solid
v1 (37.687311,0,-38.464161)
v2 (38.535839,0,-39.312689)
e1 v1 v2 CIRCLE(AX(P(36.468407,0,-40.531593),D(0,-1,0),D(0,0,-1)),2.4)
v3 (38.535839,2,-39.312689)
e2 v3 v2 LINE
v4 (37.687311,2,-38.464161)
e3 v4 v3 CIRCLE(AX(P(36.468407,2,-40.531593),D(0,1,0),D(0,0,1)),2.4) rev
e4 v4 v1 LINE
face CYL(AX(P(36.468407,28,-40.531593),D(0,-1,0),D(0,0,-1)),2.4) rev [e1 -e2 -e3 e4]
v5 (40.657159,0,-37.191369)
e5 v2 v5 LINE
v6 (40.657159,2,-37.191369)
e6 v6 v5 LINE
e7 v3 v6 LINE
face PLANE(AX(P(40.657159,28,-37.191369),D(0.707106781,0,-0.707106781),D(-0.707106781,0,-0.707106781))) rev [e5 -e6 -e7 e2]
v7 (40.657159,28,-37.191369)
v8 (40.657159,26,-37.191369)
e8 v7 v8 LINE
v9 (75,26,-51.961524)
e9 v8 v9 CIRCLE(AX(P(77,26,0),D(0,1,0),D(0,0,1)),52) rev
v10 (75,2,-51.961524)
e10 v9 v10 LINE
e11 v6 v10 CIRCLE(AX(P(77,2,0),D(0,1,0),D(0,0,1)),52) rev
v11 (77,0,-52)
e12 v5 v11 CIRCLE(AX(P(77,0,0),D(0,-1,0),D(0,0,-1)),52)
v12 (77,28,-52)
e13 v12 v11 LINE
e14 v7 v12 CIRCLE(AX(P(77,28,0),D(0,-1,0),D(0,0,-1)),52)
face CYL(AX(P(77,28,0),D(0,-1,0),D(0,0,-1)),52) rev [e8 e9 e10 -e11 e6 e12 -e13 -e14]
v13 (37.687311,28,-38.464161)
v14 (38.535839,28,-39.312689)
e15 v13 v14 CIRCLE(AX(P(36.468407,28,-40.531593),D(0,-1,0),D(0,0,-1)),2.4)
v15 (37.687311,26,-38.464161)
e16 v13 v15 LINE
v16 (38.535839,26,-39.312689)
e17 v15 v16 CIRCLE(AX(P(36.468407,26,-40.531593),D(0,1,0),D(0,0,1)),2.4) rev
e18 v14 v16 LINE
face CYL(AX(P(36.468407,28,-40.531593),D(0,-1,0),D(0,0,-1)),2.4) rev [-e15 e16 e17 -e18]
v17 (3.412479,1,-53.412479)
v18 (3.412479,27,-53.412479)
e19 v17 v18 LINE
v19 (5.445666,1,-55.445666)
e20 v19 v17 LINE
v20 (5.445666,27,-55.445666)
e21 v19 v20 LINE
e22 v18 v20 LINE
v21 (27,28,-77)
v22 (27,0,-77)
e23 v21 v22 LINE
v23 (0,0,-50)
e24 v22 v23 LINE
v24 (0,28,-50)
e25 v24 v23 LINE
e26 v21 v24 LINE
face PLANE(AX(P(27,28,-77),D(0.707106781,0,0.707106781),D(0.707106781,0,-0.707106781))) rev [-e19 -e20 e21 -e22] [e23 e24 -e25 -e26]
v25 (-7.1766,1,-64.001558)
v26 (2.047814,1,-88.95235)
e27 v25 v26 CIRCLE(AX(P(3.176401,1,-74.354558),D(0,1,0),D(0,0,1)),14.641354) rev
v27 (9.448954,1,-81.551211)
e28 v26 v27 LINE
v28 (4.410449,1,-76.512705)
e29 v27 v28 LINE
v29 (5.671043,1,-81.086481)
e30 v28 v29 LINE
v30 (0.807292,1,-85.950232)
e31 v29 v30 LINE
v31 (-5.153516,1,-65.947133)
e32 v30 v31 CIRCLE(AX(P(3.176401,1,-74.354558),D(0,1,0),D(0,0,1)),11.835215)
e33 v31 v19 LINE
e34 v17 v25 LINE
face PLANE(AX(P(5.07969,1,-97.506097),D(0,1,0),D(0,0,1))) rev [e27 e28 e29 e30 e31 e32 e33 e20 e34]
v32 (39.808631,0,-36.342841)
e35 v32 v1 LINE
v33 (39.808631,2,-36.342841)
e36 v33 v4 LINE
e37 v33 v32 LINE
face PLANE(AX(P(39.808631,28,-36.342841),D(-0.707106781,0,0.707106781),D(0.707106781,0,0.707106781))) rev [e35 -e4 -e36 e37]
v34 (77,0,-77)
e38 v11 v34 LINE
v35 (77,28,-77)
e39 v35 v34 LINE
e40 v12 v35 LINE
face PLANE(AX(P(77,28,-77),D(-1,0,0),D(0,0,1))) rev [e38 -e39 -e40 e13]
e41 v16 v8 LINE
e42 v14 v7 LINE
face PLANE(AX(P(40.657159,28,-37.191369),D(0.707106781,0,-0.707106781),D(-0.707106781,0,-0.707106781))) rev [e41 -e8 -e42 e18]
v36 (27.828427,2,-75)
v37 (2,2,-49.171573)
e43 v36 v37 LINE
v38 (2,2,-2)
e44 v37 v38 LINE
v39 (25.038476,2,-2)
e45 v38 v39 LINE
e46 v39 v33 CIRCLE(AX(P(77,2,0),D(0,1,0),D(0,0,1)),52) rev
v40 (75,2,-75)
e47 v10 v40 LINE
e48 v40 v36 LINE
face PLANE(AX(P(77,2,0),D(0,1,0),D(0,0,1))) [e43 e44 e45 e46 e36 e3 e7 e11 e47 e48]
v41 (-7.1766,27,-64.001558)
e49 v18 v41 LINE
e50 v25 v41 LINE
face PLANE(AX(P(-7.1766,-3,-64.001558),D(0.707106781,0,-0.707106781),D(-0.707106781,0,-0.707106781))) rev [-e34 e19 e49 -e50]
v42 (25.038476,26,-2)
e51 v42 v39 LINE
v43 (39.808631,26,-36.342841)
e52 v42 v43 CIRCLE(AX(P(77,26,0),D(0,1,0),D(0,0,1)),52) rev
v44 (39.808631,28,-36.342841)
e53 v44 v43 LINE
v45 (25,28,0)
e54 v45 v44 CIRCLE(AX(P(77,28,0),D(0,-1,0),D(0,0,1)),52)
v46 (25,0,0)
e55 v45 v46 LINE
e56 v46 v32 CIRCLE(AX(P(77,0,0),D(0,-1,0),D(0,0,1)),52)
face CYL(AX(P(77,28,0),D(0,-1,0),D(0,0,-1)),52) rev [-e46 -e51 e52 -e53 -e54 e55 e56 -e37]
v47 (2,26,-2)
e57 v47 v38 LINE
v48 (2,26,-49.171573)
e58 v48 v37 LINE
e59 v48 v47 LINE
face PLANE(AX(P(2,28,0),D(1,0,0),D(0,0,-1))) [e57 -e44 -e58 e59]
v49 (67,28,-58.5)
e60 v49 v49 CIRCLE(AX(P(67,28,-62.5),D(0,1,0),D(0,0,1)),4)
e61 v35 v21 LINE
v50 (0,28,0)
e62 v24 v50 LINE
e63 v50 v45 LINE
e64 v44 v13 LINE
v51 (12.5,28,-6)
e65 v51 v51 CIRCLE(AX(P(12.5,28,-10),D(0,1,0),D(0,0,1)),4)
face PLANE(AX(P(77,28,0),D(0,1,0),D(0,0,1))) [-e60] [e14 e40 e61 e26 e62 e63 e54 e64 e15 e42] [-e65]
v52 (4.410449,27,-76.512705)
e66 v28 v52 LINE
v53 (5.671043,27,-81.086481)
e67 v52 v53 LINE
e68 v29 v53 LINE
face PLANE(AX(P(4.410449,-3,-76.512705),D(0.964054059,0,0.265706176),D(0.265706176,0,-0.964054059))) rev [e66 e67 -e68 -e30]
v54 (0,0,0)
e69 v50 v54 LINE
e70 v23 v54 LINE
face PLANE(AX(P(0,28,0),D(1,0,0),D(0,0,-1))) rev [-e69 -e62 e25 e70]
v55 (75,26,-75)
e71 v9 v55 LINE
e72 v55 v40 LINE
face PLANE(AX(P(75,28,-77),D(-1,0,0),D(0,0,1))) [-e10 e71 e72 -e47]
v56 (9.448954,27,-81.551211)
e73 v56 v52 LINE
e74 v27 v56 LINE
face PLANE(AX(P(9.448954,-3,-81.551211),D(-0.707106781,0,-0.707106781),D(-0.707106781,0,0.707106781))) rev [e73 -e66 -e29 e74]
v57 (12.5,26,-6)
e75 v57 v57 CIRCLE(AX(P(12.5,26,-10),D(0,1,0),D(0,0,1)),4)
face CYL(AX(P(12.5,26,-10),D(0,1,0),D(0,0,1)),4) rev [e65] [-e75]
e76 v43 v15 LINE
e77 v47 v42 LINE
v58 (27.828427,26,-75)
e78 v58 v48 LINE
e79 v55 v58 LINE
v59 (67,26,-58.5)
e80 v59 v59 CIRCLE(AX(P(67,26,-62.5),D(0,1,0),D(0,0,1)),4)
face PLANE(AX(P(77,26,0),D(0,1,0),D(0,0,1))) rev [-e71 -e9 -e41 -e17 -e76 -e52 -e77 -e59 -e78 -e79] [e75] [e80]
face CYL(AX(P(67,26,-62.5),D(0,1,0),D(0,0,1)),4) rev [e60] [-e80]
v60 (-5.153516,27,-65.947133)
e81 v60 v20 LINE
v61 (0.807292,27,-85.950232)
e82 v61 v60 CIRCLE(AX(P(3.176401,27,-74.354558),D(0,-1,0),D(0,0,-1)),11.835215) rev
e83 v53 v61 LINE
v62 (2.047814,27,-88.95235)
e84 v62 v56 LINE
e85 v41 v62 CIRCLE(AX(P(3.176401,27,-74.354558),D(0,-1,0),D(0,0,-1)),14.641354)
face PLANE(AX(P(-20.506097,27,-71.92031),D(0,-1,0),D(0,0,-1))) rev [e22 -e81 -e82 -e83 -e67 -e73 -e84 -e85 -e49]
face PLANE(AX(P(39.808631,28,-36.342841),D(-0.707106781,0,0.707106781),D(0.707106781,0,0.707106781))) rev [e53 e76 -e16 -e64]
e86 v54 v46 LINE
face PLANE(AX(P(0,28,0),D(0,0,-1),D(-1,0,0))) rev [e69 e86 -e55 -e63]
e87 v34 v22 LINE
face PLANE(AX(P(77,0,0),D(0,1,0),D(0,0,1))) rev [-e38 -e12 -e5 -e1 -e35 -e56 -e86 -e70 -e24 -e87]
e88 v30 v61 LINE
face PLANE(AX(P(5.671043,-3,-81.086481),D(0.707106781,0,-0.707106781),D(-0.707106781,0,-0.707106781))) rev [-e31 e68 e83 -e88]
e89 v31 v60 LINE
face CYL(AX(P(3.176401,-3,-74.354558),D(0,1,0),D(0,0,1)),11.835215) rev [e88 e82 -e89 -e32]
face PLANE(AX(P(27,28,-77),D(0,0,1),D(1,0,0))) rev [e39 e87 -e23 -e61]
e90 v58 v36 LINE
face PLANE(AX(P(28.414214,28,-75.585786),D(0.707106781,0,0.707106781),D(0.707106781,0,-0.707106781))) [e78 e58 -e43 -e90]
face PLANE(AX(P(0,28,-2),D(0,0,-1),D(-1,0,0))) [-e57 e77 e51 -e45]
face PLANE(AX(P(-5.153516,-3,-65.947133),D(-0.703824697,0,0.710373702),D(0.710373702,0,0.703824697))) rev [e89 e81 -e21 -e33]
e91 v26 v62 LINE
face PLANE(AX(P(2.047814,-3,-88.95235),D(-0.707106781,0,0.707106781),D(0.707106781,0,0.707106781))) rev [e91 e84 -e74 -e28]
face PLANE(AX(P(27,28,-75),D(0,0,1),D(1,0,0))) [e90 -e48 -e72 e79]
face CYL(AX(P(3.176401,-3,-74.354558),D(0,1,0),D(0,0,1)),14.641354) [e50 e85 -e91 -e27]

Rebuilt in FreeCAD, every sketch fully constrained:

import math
import FreeCAD as App
import Part
import Sketcher
from FreeCAD import Vector
Q = App.Units.Quantity


def faces_at(feature, points):
    """Names of the faces that lie closest to the given points."""
    faces = feature.Shape.Faces
    near = lambda p: min(range(len(faces)), key=lambda i: faces[i].distToShape(Part.Vertex(*p))[0])
    return sorted({f"Face{near(p) + 1}" for p in points})

doc = App.newDocument("Part")
body = doc.addObject("PartDesign::Body", "Body")

# Sketch on XZ plane
sketch1 = body.newObject("Sketcher::SketchObject", "Sketch")
sketch1.AttachmentSupport = (doc.getObject("XZ_Plane"), [""])
sketch1.MapMode = "FlatFace"
sketch1.addGeometry([
    Part.LineSegment(Vector(0, -50, 0), Vector(0, 0, 0)),  # 0
    Part.LineSegment(Vector(0, 0, 0), Vector(25, 0, 0)),  # 1
    Part.ArcOfCircle(Part.Circle(Vector(77, 0, 0), Vector(0, 0, 1), 52), math.radians(180), math.radians(224)),  # 2
    Part.LineSegment(Vector(39.8, -36.3, 0), Vector(37.7, -38.5, 0)),  # 3
    Part.ArcOfCircle(Part.Circle(Vector(36.5, -40.5, 0), Vector(0, 0, 1), 2.4), math.radians(59), math.radians(391)),  # 4
    Part.LineSegment(Vector(38.5, -39.3, 0), Vector(40.7, -37.2, 0)),  # 5
    Part.ArcOfCircle(Part.Circle(Vector(77, 0, 0), Vector(0, 0, 1), 52), math.radians(-134), math.radians(-90)),  # 6
    Part.LineSegment(Vector(77, -52, 0), Vector(77, -77, 0)),  # 7
    Part.LineSegment(Vector(77, -77, 0), Vector(27, -77, 0)),  # 8
    Part.LineSegment(Vector(27, -77, 0), Vector(0, -50, 0)),  # 9
], False)
sketch1.addConstraint([
    Sketcher.Constraint("Coincident", 0, 2, 1, 1),
    Sketcher.Constraint("Coincident", 1, 2, 2, 1),
    Sketcher.Constraint("Coincident", 2, 2, 3, 1),
    Sketcher.Constraint("Coincident", 3, 2, 4, 1),
    Sketcher.Constraint("Coincident", 4, 2, 5, 1),
    Sketcher.Constraint("Coincident", 5, 2, 6, 1),
    Sketcher.Constraint("Coincident", 6, 2, 7, 1),
    Sketcher.Constraint("Coincident", 7, 2, 8, 1),
    Sketcher.Constraint("Coincident", 8, 2, 9, 1),
    Sketcher.Constraint("Coincident", 9, 2, 0, 1),
    Sketcher.Constraint("Vertical", 0),
    Sketcher.Constraint("Horizontal", 1),
    Sketcher.Constraint("Vertical", 7),
    Sketcher.Constraint("Horizontal", 8),
    Sketcher.Constraint("Coincident", 0, 2, -1, 1),
    Sketcher.Constraint("Coincident", 6, 3, 2, 3),
    Sketcher.Constraint("Equal", 2, 6),
    Sketcher.Constraint("PointOnObject", 2, 3, -1),
    Sketcher.Constraint("Parallel", 3, 5),
    Sketcher.Constraint("Perpendicular", 5, 9),
    Sketcher.Constraint("Vertical", 2, 3, 6, 2),
    Sketcher.Constraint("Equal", 8, 0),
    Sketcher.Constraint("Equal", 1, 7),
    Sketcher.Constraint("Equal", 3, 5),
    Sketcher.Constraint("Radius", 2, Q("52 mm")),
    Sketcher.Constraint("Radius", 4, Q("2.4 mm")),
    Sketcher.Constraint("DistanceX", 1, 1, 1, 2, Q("25 mm")),
    Sketcher.Constraint("DistanceX", 8, 2, 8, 1, Q("50 mm")),
    Sketcher.Constraint("Distance", 3, Q("3 mm")),
    Sketcher.Constraint("DistanceX", -1, 1, 2, 2, Q("39.808631 mm")),
    Sketcher.Constraint("DistanceX", -1, 1, 4, 2, Q("38.535839 mm")),
])
pad1 = body.newObject("PartDesign::Pad", "Pad")
pad1.Profile = sketch1
pad1.Length = 28
pad1.Reversed = True
doc.recompute()

thickness = body.newObject("PartDesign::Thickness", "Thickness")
thickness.Base = (pad1, faces_at(pad1, [(57.378, 14, -48.156), (28.844, 14, -19.622)]))
thickness.Value = 2
thickness.Reversed = True
thickness.Join = "Intersection"

# Sketch on XZ plane
sketch2 = body.newObject("Sketcher::SketchObject", "Sketch001")
sketch2.AttachmentSupport = (doc.getObject("XZ_Plane"), [""])
sketch2.MapMode = "FlatFace"
sketch2.AttachmentOffset = App.Placement(Vector(0, 0, -14), App.Rotation())
sketch2.addGeometry(Part.Circle(Vector(36, -39, 0), Vector(0, 0, 1), 6), False)
sketch2.addConstraint([
    Sketcher.Constraint("Diameter", 0, Q("12.8 mm")),
    Sketcher.Constraint("DistanceX", -1, 1, 0, 3, Q("36.184678 mm")),
    Sketcher.Constraint("DistanceY", 0, 3, -1, 1, Q("38.815322 mm")),
])
pocket1 = body.newObject("PartDesign::Pocket", "Pocket")
pocket1.Profile = sketch2
pocket1.Type = "TwoLengths"
pocket1.Length = 12
pocket1.Length2 = 12

# Sketch on XZ plane
sketch3 = body.newObject("Sketcher::SketchObject", "Sketch002")
sketch3.AttachmentSupport = (doc.getObject("XZ_Plane"), [""])
sketch3.MapMode = "FlatFace"
sketch3.AttachmentOffset = App.Placement(Vector(0, 0, -28), App.Rotation())
sketch3.addGeometry([
    Part.Circle(Vector(67, -62.5, 0), Vector(0, 0, 1), 4),
    Part.Circle(Vector(12.5, -10, 0), Vector(0, 0, 1), 4),
], False)
sketch3.addConstraint([
    Sketcher.Constraint("Equal", 0, 1),
    Sketcher.Constraint("Diameter", 0, Q("8 mm")),
    Sketcher.Constraint("DistanceX", -1, 1, 0, 3, Q("67 mm")),
    Sketcher.Constraint("DistanceY", 1, 3, -1, 1, Q("10 mm")),
    Sketcher.Constraint("DistanceY", 0, 3, -1, 1, Q("62.5 mm")),
    Sketcher.Constraint("DistanceX", -1, 1, 1, 3, Q("12.5 mm")),
])
pocket2 = body.newObject("PartDesign::Pocket", "Pocket001")
pocket2.Profile = sketch3
pocket2.Length = 2
pocket2.Reversed = True

# Sketch on an angled plane
sketch4 = body.newObject("Sketcher::SketchObject", "Sketch003")
sketch4.Placement = App.Placement(Vector(-25, 0, -25), App.Rotation(Vector(-0.707106781, 0, 0.707106781), Vector(0, 0.999999999, 0), Vector(-0.707106781, 0, -0.707106781), "ZXY"))
sketch4.addGeometry([
    Part.LineSegment(Vector(-73, 27, 0), Vector(-73, 1, 0)),
    Part.LineSegment(Vector(-73, 1, 0), Vector(-36, 1, 0)),
    Part.LineSegment(Vector(-36, 1, 0), Vector(-36, 27, 0)),
    Part.LineSegment(Vector(-36, 27, 0), Vector(-73, 27, 0)),
], False)
sketch4.addConstraint([
    Sketcher.Constraint("Coincident", 0, 2, 1, 1),
    Sketcher.Constraint("Coincident", 1, 2, 2, 1),
    Sketcher.Constraint("Coincident", 2, 2, 3, 1),
    Sketcher.Constraint("Coincident", 3, 2, 0, 1),
    Sketcher.Constraint("Vertical", 0),
    Sketcher.Constraint("Horizontal", 1),
    Sketcher.Constraint("Vertical", 2),
    Sketcher.Constraint("Horizontal", 3),
    Sketcher.Constraint("DistanceY", 0, 2, 0, 1, Q("26 mm")),
    Sketcher.Constraint("DistanceY", -1, 1, 0, 2, Q("1 mm")),
    Sketcher.Constraint("DistanceX", 1, 1, 1, 2, Q("36.183766 mm")),
    Sketcher.Constraint("DistanceX", 1, 2, -1, 1, Q("36.355339 mm")),
])
pad2 = body.newObject("PartDesign::Pad", "Pad001")
pad2.Profile = sketch4
pad2.Length = 30

# Sketch on XZ plane
sketch5 = body.newObject("Sketcher::SketchObject", "Sketch004")
sketch5.AttachmentSupport = (doc.getObject("XZ_Plane"), [""])
sketch5.MapMode = "FlatFace"
sketch5.AttachmentOffset = App.Placement(Vector(0, 0, -27), App.Rotation())
sketch5.addGeometry([
    Part.LineSegment(Vector(3.4, -53.4, 0), Vector(-7.2, -64, 0)),  # 0
    Part.ArcOfCircle(Part.Circle(Vector(3.2, -74.4, 0), Vector(0, 0, 1), 14.6), math.radians(135), math.radians(266)),  # 1
    Part.LineSegment(Vector(2, -89, 0), Vector(9.4, -81.6, 0)),  # 2
    Part.LineSegment(Vector(9.4, -81.6, 0), Vector(4.4, -76.5, 0)),  # 3
    Part.LineSegment(Vector(4.4, -76.5, 0), Vector(5.7, -81.1, 0)),  # 4
    Part.LineSegment(Vector(5.7, -81.1, 0), Vector(0.8, -86, 0)),  # 5
    Part.ArcOfCircle(Part.Circle(Vector(3.2, -74.4, 0), Vector(0, 0, 1), 11.8), math.radians(135), math.radians(258)),  # 6
    Part.LineSegment(Vector(-5.2, -65.9, 0), Vector(5.4, -55.4, 0)),  # 7
    Part.LineSegment(Vector(5.4, -55.4, 0), Vector(26.3, -76.3, 0)),  # 8
    Part.LineSegment(Vector(26.3, -76.3, 0), Vector(5.1, -97.5, 0)),  # 9
    Part.LineSegment(Vector(5.1, -97.5, 0), Vector(-20.5, -71.9, 0)),  # 10
    Part.LineSegment(Vector(-20.5, -71.9, 0), Vector(0.7, -50.7, 0)),  # 11
    Part.LineSegment(Vector(0.7, -50.7, 0), Vector(3.4, -53.4, 0)),  # 12
], False)
sketch5.addConstraint([
    Sketcher.Constraint("Tangent", 0, 2, 1, 1),
    Sketcher.Constraint("Coincident", 1, 2, 2, 1),
    Sketcher.Constraint("Coincident", 2, 2, 3, 1),
    Sketcher.Constraint("Coincident", 3, 2, 4, 1),
    Sketcher.Constraint("Coincident", 4, 2, 5, 1),
    Sketcher.Constraint("Coincident", 5, 2, 6, 2),
    Sketcher.Constraint("Tangent", 6, 1, 7, 1),
    Sketcher.Constraint("Coincident", 7, 2, 8, 1),
    Sketcher.Constraint("Coincident", 8, 2, 9, 1),
    Sketcher.Constraint("Coincident", 9, 2, 10, 1),
    Sketcher.Constraint("Coincident", 10, 2, 11, 1),
    Sketcher.Constraint("Coincident", 11, 2, 12, 1),
    Sketcher.Constraint("Coincident", 12, 2, 0, 1),
    Sketcher.Constraint("Coincident", 6, 3, 1, 3),
    Sketcher.Constraint("Parallel", 0, 2),
    Sketcher.Constraint("Perpendicular", 2, 3),
    Sketcher.Constraint("Perpendicular", 3, 5),
    Sketcher.Constraint("Perpendicular", 5, 8),
    Sketcher.Constraint("Perpendicular", 8, 9),
    Sketcher.Constraint("Perpendicular", 9, 10),
    Sketcher.Constraint("Perpendicular", 10, 11),
    Sketcher.Constraint("Perpendicular", 11, 12),
    Sketcher.Constraint("Equal", 9, 11),
    Sketcher.Constraint("Angle", 0, Q("-135 deg")),
    Sketcher.Constraint("Distance", 9, Q("30 mm")),
    Sketcher.Constraint("Radius", 1, Q("14.641354 mm")),
    Sketcher.Constraint("Radius", 6, Q("11.835215 mm")),
    Sketcher.Constraint("DistanceX", -1, 1, 1, 3, Q("3.176401 mm")),
    Sketcher.Constraint("Distance", 0, Q("14.975219 mm")),
    Sketcher.Constraint("Distance", 5, Q("6.878381 mm")),
    Sketcher.Constraint("Distance", 7, Q("14.920572 mm")),
    Sketcher.Constraint("Distance", 8, Q("29.482432 mm")),
    Sketcher.Constraint("DistanceY", 1, 3, -1, 1, Q("74.354558 mm")),
    Sketcher.Constraint("DistanceY", 1, 2, -1, 1, Q("88.95235 mm")),
    Sketcher.Constraint("DistanceY", 2, 2, -1, 1, Q("81.551211 mm")),
    Sketcher.Constraint("DistanceX", -1, 1, 3, 2, Q("4.410449 mm")),
    Sketcher.Constraint("DistanceY", 4, 2, -1, 1, Q("81.086481 mm")),
    Sketcher.Constraint("DistanceY", 10, 2, -1, 1, Q("71.92031 mm")),
])
pocket3 = body.newObject("PartDesign::Pocket", "Pocket002")
pocket3.Profile = sketch5
pocket3.Length = 30
pocket3.Reversed = True

doc.recompute()
